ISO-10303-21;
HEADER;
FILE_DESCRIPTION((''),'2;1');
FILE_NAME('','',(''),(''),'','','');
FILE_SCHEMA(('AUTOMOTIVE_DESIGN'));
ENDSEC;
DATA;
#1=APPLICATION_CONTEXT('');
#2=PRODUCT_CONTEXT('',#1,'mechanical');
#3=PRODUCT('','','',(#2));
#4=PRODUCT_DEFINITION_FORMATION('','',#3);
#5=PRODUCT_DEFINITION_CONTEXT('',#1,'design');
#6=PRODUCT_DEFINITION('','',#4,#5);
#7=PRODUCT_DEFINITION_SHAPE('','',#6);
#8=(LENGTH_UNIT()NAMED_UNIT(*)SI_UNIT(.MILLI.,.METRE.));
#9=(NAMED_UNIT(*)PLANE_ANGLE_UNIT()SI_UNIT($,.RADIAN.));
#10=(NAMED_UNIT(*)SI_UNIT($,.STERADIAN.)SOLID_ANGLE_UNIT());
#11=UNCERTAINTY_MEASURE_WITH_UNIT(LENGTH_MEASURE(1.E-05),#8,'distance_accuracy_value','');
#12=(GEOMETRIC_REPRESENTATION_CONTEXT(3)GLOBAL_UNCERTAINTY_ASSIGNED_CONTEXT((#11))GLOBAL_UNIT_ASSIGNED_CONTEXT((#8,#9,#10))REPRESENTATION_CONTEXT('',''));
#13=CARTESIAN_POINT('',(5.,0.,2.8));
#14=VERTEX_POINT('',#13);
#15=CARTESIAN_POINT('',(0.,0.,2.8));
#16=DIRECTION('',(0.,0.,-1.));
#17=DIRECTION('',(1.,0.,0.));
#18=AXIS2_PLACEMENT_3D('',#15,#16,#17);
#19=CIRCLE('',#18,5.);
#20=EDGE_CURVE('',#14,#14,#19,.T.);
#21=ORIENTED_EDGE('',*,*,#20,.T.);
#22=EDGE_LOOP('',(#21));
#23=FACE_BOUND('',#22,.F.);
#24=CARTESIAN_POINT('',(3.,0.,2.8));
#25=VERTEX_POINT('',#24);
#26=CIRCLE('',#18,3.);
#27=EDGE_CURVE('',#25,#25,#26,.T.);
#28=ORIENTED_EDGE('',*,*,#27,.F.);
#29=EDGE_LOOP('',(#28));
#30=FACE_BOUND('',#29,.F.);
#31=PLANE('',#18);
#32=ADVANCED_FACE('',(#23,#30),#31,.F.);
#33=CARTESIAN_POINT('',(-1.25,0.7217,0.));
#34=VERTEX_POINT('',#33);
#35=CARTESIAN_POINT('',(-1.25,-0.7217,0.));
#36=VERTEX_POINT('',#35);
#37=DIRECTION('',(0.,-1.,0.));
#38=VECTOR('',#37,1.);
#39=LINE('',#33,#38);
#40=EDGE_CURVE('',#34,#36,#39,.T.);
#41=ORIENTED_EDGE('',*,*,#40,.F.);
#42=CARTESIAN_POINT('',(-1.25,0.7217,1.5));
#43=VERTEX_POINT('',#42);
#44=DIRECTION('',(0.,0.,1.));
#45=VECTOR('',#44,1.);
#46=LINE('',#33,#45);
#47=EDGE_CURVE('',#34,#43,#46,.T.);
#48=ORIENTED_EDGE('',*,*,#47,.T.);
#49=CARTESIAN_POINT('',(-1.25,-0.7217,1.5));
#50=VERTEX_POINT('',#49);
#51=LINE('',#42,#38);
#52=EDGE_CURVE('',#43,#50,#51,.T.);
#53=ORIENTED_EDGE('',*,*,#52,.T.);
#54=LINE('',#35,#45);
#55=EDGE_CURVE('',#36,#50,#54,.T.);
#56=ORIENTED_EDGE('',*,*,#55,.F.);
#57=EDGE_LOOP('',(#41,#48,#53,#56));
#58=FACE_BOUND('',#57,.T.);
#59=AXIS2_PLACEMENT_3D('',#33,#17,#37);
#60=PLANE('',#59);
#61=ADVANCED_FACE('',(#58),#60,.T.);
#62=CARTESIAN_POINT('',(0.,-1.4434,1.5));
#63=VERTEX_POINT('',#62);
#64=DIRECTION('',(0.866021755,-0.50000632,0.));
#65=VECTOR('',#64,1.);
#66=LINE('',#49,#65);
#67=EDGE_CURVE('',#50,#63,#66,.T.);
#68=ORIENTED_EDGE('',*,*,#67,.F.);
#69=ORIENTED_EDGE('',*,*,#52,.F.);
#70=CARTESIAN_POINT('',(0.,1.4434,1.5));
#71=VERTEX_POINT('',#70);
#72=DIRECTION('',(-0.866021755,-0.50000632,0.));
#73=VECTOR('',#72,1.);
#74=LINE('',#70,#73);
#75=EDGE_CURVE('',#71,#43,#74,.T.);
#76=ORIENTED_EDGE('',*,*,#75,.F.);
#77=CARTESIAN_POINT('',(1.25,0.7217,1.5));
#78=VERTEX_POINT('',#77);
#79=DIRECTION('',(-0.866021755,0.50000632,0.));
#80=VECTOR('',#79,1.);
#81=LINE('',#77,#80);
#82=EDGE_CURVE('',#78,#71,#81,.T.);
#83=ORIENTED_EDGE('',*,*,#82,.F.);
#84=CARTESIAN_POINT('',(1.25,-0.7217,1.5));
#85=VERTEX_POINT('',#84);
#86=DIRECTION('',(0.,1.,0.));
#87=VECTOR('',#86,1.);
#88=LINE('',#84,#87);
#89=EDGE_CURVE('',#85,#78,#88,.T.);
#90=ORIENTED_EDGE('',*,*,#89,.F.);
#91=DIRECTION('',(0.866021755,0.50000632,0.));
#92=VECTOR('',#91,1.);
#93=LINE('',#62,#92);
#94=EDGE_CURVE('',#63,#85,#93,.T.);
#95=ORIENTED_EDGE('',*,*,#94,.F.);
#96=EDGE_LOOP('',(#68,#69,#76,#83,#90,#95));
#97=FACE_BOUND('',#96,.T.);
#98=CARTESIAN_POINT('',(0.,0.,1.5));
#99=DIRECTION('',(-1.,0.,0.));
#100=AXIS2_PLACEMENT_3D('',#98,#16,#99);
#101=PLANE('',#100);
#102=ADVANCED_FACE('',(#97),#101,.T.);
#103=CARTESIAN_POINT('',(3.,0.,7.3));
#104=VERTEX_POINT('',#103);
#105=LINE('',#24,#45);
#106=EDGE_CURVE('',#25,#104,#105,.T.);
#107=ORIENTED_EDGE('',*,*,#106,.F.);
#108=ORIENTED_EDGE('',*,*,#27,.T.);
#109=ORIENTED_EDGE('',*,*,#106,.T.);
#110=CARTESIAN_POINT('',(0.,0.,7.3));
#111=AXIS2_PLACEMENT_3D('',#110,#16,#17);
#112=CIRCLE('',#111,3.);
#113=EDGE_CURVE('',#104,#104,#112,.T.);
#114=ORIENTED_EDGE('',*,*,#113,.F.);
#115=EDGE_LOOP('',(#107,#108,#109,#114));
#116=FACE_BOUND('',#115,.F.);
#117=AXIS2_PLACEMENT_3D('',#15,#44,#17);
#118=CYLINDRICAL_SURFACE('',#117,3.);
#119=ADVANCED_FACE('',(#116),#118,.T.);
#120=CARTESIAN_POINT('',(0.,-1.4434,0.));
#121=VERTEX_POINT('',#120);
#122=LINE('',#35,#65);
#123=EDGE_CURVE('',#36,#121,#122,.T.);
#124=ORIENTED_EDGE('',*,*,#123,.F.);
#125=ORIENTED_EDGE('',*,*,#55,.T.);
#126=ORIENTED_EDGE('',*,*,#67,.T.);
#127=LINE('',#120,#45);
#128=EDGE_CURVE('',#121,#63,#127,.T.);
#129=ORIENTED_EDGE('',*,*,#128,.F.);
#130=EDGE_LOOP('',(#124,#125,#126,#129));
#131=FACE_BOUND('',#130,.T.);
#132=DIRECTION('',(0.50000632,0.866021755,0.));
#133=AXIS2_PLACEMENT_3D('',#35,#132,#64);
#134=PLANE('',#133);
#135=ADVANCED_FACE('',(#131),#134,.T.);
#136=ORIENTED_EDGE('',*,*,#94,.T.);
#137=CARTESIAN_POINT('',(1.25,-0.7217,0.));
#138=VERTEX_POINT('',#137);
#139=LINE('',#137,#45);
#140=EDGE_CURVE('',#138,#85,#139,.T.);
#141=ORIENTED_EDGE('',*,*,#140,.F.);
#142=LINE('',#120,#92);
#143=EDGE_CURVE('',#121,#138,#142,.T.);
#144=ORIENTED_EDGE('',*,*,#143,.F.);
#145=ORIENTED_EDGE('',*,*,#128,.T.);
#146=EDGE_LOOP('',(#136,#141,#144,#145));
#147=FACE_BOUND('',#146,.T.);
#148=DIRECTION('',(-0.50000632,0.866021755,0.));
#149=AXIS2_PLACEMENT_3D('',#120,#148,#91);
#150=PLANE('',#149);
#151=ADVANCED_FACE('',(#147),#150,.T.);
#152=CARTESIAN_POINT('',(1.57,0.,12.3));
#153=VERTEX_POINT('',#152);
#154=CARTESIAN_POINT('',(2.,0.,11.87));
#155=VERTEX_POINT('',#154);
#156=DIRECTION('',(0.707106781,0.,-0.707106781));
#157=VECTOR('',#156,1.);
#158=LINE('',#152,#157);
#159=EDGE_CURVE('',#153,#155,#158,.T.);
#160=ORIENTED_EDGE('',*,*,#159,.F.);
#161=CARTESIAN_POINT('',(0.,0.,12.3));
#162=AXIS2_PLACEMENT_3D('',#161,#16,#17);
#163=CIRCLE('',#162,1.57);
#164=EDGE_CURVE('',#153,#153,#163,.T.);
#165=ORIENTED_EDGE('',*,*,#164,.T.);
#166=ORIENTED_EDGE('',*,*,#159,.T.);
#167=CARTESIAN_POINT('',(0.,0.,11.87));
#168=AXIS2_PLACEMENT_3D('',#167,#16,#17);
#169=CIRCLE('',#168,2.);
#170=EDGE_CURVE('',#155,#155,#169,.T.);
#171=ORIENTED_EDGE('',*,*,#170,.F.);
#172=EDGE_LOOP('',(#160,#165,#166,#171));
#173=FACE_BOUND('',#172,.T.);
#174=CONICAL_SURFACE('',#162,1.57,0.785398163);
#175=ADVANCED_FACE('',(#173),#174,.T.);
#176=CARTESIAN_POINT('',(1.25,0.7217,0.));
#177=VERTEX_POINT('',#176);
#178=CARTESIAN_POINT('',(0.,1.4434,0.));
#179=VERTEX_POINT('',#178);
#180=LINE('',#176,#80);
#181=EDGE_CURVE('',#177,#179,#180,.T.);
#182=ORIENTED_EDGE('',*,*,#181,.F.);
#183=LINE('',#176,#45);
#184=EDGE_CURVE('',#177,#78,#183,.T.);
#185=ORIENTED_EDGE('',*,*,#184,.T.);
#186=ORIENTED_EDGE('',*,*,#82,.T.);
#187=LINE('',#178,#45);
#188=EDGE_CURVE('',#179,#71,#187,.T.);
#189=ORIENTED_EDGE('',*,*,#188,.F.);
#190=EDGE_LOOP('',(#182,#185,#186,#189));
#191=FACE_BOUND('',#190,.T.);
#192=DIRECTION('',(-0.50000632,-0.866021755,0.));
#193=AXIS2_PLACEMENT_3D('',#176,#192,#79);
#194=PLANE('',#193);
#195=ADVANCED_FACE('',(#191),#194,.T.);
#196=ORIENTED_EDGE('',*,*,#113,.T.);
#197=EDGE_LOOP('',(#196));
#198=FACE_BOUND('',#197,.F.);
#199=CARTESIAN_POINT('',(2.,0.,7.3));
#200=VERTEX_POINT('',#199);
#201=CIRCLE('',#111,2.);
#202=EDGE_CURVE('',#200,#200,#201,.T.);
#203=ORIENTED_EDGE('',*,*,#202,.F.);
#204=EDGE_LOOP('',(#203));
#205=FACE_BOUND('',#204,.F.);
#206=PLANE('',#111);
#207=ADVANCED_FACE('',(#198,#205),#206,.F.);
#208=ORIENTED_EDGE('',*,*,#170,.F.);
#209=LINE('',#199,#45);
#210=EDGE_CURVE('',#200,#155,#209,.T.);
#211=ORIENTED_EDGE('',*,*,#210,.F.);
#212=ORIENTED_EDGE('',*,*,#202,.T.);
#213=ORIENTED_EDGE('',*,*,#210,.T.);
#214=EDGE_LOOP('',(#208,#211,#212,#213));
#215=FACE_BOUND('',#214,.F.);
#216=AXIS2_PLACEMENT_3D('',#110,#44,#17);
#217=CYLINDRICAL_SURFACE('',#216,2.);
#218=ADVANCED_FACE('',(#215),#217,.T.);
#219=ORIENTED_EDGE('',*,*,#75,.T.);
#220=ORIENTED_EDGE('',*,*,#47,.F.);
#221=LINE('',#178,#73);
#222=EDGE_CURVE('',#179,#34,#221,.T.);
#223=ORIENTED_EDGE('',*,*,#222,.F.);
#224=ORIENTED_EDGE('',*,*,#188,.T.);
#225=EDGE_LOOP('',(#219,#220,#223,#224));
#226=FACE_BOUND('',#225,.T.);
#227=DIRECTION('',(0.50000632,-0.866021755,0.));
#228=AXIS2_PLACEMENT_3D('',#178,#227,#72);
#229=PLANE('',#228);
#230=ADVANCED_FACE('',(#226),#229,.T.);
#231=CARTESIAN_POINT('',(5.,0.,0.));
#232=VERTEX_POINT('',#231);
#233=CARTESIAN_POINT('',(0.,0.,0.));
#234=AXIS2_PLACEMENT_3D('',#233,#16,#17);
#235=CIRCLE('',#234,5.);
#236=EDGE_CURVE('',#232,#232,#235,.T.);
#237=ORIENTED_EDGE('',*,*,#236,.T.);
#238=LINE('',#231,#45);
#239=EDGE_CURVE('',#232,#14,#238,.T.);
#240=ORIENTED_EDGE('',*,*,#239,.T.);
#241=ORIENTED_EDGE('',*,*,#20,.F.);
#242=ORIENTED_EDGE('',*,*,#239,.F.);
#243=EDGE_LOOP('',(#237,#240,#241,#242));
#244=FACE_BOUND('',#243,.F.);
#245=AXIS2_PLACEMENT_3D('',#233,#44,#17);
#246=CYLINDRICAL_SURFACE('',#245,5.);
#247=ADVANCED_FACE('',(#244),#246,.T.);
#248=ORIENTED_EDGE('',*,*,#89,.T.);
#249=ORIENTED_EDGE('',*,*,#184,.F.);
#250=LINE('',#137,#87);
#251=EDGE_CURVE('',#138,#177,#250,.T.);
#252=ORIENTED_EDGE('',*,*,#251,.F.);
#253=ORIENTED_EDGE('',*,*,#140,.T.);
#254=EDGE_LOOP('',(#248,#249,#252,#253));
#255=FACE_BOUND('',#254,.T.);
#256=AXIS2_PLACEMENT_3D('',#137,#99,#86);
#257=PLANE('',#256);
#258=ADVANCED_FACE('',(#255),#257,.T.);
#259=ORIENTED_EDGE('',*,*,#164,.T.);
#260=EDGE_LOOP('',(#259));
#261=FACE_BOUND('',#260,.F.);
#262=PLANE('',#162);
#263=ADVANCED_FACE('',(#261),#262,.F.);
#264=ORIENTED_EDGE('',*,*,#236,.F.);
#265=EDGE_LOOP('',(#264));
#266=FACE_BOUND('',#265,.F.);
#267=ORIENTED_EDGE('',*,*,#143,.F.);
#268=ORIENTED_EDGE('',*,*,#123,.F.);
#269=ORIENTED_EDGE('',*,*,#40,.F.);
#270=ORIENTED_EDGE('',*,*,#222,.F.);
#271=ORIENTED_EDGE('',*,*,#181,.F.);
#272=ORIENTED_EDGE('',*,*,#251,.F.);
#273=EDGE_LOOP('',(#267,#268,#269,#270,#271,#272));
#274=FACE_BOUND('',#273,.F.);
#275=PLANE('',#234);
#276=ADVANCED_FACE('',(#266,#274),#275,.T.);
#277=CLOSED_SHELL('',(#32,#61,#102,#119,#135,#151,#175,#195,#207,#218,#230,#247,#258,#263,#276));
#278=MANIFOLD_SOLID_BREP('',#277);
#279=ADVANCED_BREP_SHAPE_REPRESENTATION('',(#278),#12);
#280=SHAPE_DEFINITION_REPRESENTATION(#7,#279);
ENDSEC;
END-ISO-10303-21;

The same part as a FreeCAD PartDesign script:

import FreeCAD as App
import Part
import Sketcher

V = App.Vector
Q = App.Units.Quantity


def add_polygon(sketch, points):
    """Adds a closed chain of lines whose ends are joined by coincident constraints."""
    first, n = sketch.GeometryCount, len(points)
    for a, b in zip(points, points[1:] + points[:1]):
        sketch.addGeometry(Part.LineSegment(App.Vector(*a, 0), App.Vector(*b, 0)), False)
    for i in range(n):
        sketch.addConstraint(Sketcher.Constraint("Coincident", first + i, 2, first + (i + 1) % n, 1))

doc = App.newDocument("Part")
body = doc.addObject("PartDesign::Body", "Body")

sketch1 = doc.addObject("Sketcher::SketchObject", "Sketch")
body.addObject(sketch1)
sketch1.AttachmentSupport = (doc.XZ_Plane, [""])
sketch1.MapMode = "FlatFace"
add_polygon(sketch1, [(5, 0), (0, 0), (0, 12.3), (1.6, 12.3), (2, 11.9), (2, 7.3), (3, 7.3), (3, 2.8), (5, 2.8)])
sketch1.addConstraint(Sketcher.Constraint("Horizontal", 0))
sketch1.addConstraint(Sketcher.Constraint("Vertical", 1))
sketch1.addConstraint(Sketcher.Constraint("Horizontal", 2))
sketch1.addConstraint(Sketcher.Constraint("Vertical", 4))
sketch1.addConstraint(Sketcher.Constraint("Horizontal", 5))
sketch1.addConstraint(Sketcher.Constraint("Vertical", 6))
sketch1.addConstraint(Sketcher.Constraint("Horizontal", 7))
sketch1.addConstraint(Sketcher.Constraint("Vertical", 8))
sketch1.addConstraint(Sketcher.Constraint("Coincident", 0, 2, -1, 1))
sketch1.addConstraint(Sketcher.Constraint("DistanceX", 0, 2, 0, 1, 5.0))
sketch1.addConstraint(Sketcher.Constraint("DistanceY", 6, 2, 6, 1, 4.5))
sketch1.addConstraint(Sketcher.Constraint("DistanceY", 8, 2, 8, 1, 2.8))
sketch1.addConstraint(Sketcher.Constraint("DistanceY", 4, 2, 2, 2, 5.0))
sketch1.addConstraint(Sketcher.Constraint("DistanceX", 5, 1, 5, 2, 1.0))
sketch1.addConstraint(Sketcher.Constraint("DistanceX", 7, 1, 7, 2, 2.0))
sketch1.addConstraint(Sketcher.Constraint("Angle", 3, Q("-45 deg")))
sketch1.addConstraint(Sketcher.Constraint("DistanceX", 2, 2, 3, 2, 0.43))
revolution = doc.addObject("PartDesign::Revolution", "Revolution")
body.addObject(revolution)
revolution.Profile = sketch1
revolution.ReferenceAxis = (sketch1, ["V_Axis"])
revolution.Angle = 360

sketch2 = doc.addObject("Sketcher::SketchObject", "Sketch001")
body.addObject(sketch2)
sketch2.AttachmentSupport = (doc.XY_Plane, [""])
sketch2.MapMode = "FlatFace"
add_polygon(sketch2, [(1.2, -0.7), (0, -1.4), (-1.2, -0.7), (-1.2, 0.7), (0, 1.4), (1.2, 0.7)])
sketch2.addConstraint(Sketcher.Constraint("Vertical", 2))
sketch2.addConstraint(Sketcher.Constraint("Vertical", 5))
sketch2.addConstraint(Sketcher.Constraint("Symmetric", 0, 2, 3, 2, -1, 1))
sketch2.addConstraint(Sketcher.Constraint("Symmetric", 1, 2, 4, 2, -1, 1))
sketch2.addConstraint(Sketcher.Constraint("PointOnObject", 0, 2, -2))
sketch2.addConstraint(Sketcher.Constraint("Parallel", 0, 3))
sketch2.addConstraint(Sketcher.Constraint("Horizontal", 2, 2, 4, 2))
sketch2.addConstraint(Sketcher.Constraint("DistanceX", 2, 2, 4, 2, 2.5))
sketch2.addConstraint(Sketcher.Constraint("Angle", 0, Q("-149.9996 deg")))
sketch2.addConstraint(Sketcher.Constraint("DistanceY", 2, 1, 2, 2, 1.4434))
pocket1 = doc.addObject("PartDesign::Pocket", "Pocket")
body.addObject(pocket1)
pocket1.Profile = sketch2
pocket1.Length = 1.5
pocket1.Reversed = True

doc.recompute()
